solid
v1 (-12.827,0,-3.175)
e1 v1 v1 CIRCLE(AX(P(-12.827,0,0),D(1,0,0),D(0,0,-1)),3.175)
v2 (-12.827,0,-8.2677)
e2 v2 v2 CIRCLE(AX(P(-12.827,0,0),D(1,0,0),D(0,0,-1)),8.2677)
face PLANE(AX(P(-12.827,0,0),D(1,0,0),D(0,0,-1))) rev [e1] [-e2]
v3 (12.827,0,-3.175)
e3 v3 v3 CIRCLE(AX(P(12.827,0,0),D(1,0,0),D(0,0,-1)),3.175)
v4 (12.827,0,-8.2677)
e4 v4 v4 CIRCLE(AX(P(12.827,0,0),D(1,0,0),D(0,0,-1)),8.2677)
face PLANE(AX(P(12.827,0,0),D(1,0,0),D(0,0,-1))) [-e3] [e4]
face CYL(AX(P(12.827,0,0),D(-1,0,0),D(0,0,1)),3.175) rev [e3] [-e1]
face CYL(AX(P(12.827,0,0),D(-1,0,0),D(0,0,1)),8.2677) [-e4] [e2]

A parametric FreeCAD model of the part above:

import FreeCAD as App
import Part
import Sketcher
Q = App.Units.Quantity

doc = App.newDocument("Part")
body = doc.addObject("PartDesign::Body", "Body")

sketch1 = doc.addObject("Sketcher::SketchObject", "Sketch")
body.addObject(sketch1)
sketch1.AttachmentSupport = (doc.YZ_Plane, [""])
sketch1.MapMode = "FlatFace"
sketch1.addGeometry([
    Part.Circle(App.Vector(0, 0, 0), App.Vector(0, 0, 1), 8.3),
    Part.Circle(App.Vector(0, 0, 0), App.Vector(0, 0, 1), 3.2),
], False)
sketch1.addConstraint([
    Sketcher.Constraint("Coincident", 0, 3, -1, 1),
    Sketcher.Constraint("Coincident", 1, 3, -1, 1),
    Sketcher.Constraint("Diameter", 1, Q("0.25 in")),
    Sketcher.Constraint("Diameter", 0, Q("0.651 in")),
])
pad1 = doc.addObject("PartDesign::Pad", "Pad")
body.addObject(pad1)
pad1.Profile = sketch1
pad1.Length = Q("1.01 in")
pad1.Midplane = True

doc.recompute()
